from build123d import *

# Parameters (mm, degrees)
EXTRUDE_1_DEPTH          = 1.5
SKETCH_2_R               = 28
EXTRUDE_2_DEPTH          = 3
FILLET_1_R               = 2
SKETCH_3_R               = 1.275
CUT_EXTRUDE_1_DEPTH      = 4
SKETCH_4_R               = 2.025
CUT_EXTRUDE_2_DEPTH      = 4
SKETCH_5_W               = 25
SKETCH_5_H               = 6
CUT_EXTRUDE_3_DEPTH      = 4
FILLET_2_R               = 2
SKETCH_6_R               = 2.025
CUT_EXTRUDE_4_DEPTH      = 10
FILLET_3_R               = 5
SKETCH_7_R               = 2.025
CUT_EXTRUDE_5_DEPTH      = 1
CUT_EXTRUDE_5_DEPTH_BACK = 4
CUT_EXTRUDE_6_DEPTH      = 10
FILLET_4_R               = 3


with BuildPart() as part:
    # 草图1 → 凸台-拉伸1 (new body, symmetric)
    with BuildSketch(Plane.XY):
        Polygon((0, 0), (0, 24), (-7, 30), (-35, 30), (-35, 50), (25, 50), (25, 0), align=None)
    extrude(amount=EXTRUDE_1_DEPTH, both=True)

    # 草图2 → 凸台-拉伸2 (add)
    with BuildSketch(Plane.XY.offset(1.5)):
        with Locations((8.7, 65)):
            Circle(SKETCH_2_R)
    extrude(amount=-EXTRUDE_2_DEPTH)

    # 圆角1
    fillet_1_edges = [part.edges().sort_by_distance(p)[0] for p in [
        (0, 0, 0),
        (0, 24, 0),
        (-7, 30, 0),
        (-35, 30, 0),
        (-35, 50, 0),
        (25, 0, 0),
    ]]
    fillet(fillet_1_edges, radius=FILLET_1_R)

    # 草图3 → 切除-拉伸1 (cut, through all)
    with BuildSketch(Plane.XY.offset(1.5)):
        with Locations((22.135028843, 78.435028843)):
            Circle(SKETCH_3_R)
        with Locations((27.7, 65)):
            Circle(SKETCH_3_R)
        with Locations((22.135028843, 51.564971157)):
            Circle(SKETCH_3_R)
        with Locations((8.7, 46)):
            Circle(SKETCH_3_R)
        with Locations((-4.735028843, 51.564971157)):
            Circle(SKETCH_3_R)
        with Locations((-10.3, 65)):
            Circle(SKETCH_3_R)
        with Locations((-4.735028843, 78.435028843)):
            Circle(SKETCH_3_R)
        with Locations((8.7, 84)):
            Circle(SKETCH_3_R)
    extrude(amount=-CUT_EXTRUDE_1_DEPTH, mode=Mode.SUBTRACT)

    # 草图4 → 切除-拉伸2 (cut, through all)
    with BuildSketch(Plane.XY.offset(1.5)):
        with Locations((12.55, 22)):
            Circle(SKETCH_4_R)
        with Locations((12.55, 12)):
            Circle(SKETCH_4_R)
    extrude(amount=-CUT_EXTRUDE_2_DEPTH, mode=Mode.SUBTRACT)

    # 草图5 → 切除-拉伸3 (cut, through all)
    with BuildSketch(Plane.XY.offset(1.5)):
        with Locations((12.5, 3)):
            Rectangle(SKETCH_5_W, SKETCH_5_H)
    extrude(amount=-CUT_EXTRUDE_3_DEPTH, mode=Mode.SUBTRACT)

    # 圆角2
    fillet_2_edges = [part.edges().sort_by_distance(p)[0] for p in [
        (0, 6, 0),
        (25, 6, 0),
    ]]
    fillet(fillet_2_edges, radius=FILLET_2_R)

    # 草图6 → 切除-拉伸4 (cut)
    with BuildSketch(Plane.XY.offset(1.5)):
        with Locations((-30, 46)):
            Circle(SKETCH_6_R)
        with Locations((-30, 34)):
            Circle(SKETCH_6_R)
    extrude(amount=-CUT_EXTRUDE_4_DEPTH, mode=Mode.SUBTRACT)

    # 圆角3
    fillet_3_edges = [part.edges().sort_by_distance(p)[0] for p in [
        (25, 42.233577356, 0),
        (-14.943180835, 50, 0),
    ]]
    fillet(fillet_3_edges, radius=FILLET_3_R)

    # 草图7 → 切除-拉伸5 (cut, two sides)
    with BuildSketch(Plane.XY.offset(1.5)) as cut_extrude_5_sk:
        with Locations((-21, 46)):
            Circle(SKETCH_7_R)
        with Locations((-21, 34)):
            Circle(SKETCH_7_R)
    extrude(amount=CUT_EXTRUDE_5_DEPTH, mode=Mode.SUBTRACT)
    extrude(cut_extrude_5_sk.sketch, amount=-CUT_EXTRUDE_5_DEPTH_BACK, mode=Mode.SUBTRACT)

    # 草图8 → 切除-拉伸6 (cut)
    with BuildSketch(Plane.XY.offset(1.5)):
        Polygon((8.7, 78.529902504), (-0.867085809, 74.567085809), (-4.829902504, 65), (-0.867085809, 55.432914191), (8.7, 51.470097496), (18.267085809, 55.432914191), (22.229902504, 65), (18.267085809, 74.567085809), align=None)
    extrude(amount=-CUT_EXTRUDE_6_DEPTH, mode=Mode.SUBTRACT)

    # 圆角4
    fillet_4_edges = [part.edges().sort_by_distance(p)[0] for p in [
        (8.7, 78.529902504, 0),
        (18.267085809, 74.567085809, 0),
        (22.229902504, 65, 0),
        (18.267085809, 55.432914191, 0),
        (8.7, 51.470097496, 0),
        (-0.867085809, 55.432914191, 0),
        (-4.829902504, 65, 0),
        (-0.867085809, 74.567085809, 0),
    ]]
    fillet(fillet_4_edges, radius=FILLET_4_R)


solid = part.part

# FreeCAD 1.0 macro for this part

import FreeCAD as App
import Part
import Sketcher

V = App.Vector
Q = App.Units.Quantity


def edges_at(feature, points):
    """Names of the edges that pass closest to the given points."""
    edges = feature.Shape.Edges
    near = lambda p: min(range(len(edges)), key=lambda i: edges[i].distToShape(Part.Vertex(*p))[0])
    return sorted({f"Edge{near(p) + 1}" for p in points})

doc = App.newDocument("Part")
body = doc.addObject("PartDesign::Body", "Body")

# Sketch on XY plane
sketch1 = body.newObject("Sketcher::SketchObject", "Sketch")
sketch1.AttachmentSupport = (doc.getObject("XY_Plane"), [""])
sketch1.MapMode = "FlatFace"
sketch1.addGeometry(Part.LineSegment(V(0, 24, 0), V(0, 0, 0)), False)
sketch1.addGeometry(Part.LineSegment(V(0, 0, 0), V(25, 0, 0)), False)
sketch1.addGeometry(Part.LineSegment(V(25, 0, 0), V(25, 50, 0)), False)
sketch1.addGeometry(Part.LineSegment(V(25, 50, 0), V(-35, 50, 0)), False)
sketch1.addGeometry(Part.LineSegment(V(-35, 50, 0), V(-35, 30, 0)), False)
sketch1.addGeometry(Part.LineSegment(V(-35, 30, 0), V(-7, 30, 0)), False)
sketch1.addGeometry(Part.LineSegment(V(-7, 30, 0), V(0, 24, 0)), False)
sketch1.addConstraint(Sketcher.Constraint("Coincident", 0, 2, 1, 1))
sketch1.addConstraint(Sketcher.Constraint("Coincident", 1, 2, 2, 1))
sketch1.addConstraint(Sketcher.Constraint("Coincident", 2, 2, 3, 1))
sketch1.addConstraint(Sketcher.Constraint("Coincident", 3, 2, 4, 1))
sketch1.addConstraint(Sketcher.Constraint("Coincident", 4, 2, 5, 1))
sketch1.addConstraint(Sketcher.Constraint("Coincident", 5, 2, 6, 1))
sketch1.addConstraint(Sketcher.Constraint("Coincident", 6, 2, 0, 1))
sketch1.addConstraint(Sketcher.Constraint("Vertical", 0))
sketch1.addConstraint(Sketcher.Constraint("Horizontal", 1))
sketch1.addConstraint(Sketcher.Constraint("Vertical", 2))
sketch1.addConstraint(Sketcher.Constraint("Horizontal", 3))
sketch1.addConstraint(Sketcher.Constraint("Vertical", 4))
sketch1.addConstraint(Sketcher.Constraint("Horizontal", 5))
sketch1.addConstraint(Sketcher.Constraint("Coincident", 0, 2, -1, 1))
sketch1.addConstraint(Sketcher.Constraint("DistanceX", 1, 1, 1, 2, Q("25 mm")))
sketch1.addConstraint(Sketcher.Constraint("DistanceX", 3, 2, 3, 1, Q("60 mm")))
sketch1.addConstraint(Sketcher.Constraint("DistanceX", 5, 1, 5, 2, Q("28 mm")))
sketch1.addConstraint(Sketcher.Constraint("DistanceY", 0, 2, 0, 1, Q("24 mm")))
sketch1.addConstraint(Sketcher.Constraint("DistanceY", 2, 1, 2, 2, Q("50 mm")))
sketch1.addConstraint(Sketcher.Constraint("DistanceY", 4, 2, 4, 1, Q("20 mm")))
pad1 = body.newObject("PartDesign::Pad", "Pad")
pad1.Profile = sketch1
pad1.Length = 3
pad1.Midplane = True

# Sketch on XY plane
sketch2 = body.newObject("Sketcher::SketchObject", "Sketch001")
sketch2.AttachmentSupport = (doc.getObject("XY_Plane"), [""])
sketch2.MapMode = "FlatFace"
sketch2.AttachmentOffset = App.Placement(V(0, 0, 1.5), App.Rotation())
sketch2.addGeometry(Part.Circle(V(9, 65, 0), V(0, 0, 1), 28), False)
sketch2.addConstraint(Sketcher.Constraint("Diameter", 0, Q("56 mm")))
sketch2.addConstraint(Sketcher.Constraint("DistanceY", -1, 1, 0, 3, Q("65 mm")))
sketch2.addConstraint(Sketcher.Constraint("DistanceX", -1, 1, 0, 3, Q("8.7 mm")))
pad2 = body.newObject("PartDesign::Pad", "Pad001")
pad2.Profile = sketch2
pad2.Length = 3
pad2.Reversed = True
doc.recompute()

fillet = body.newObject("PartDesign::Fillet", "Fillet")
fillet.Base = (pad2, edges_at(pad2, [
    (0, 0, 0),
    (0, 24, 0),
    (-7, 30, 0),
    (-35, 30, 0),
    (-35, 50, 0),
    (25, 0, 0),
]))
fillet.Radius = 2

# Sketch on XY plane
sketch3 = body.newObject("Sketcher::SketchObject", "Sketch002")
sketch3.AttachmentSupport = (doc.getObject("XY_Plane"), [""])
sketch3.MapMode = "FlatFace"
sketch3.AttachmentOffset = App.Placement(V(0, 0, 1.5), App.Rotation())
sketch3.addGeometry(Part.Circle(V(22.1, 78.4, 0), V(0, 0, 1), 1.3), False)
sketch3.addGeometry(Part.Circle(V(27.7, 65, 0), V(0, 0, 1), 1.3), False)
sketch3.addGeometry(Part.Circle(V(22.1, 51.6, 0), V(0, 0, 1), 1.3), False)
sketch3.addGeometry(Part.Circle(V(8.7, 46, 0), V(0, 0, 1), 1.3), False)
sketch3.addGeometry(Part.Circle(V(-4.7, 51.6, 0), V(0, 0, 1), 1.3), False)
sketch3.addGeometry(Part.Circle(V(-10.3, 65, 0), V(0, 0, 1), 1.3), False)
sketch3.addGeometry(Part.Circle(V(-4.7, 78.4, 0), V(0, 0, 1), 1.3), False)
sketch3.addGeometry(Part.Circle(V(8.7, 84, 0), V(0, 0, 1), 1.3), False)
sketch3.addConstraint(Sketcher.Constraint("Equal", 0, 1))
sketch3.addConstraint(Sketcher.Constraint("Equal", 1, 2))
sketch3.addConstraint(Sketcher.Constraint("Equal", 2, 3))
sketch3.addConstraint(Sketcher.Constraint("Equal", 3, 4))
sketch3.addConstraint(Sketcher.Constraint("Equal", 4, 5))
sketch3.addConstraint(Sketcher.Constraint("Equal", 5, 6))
sketch3.addConstraint(Sketcher.Constraint("Equal", 6, 7))
sketch3.addConstraint(Sketcher.Constraint("Horizontal", 2, 3, 4, 3))
sketch3.addConstraint(Sketcher.Constraint("Horizontal", 1, 3, 5, 3))
sketch3.addConstraint(Sketcher.Constraint("Horizontal", 0, 3, 6, 3))
sketch3.addConstraint(Sketcher.Constraint("Vertical", 0, 3, 2, 3))
sketch3.addConstraint(Sketcher.Constraint("Vertical", 4, 3, 6, 3))
sketch3.addConstraint(Sketcher.Constraint("Vertical", 3, 3, 7, 3))
sketch3.addConstraint(Sketcher.Constraint("Diameter", 0, Q("2.55 mm")))
sketch3.addConstraint(Sketcher.Constraint("DistanceY", -1, 1, 1, 3, Q("65 mm")))
sketch3.addConstraint(Sketcher.Constraint("DistanceY", -1, 1, 3, 3, Q("46 mm")))
sketch3.addConstraint(Sketcher.Constraint("DistanceY", -1, 1, 7, 3, Q("84 mm")))
sketch3.addConstraint(Sketcher.Constraint("DistanceX", 3, 3, 1, 3, Q("19 mm")))
sketch3.addConstraint(Sketcher.Constraint("DistanceX", 5, 3, 3, 3, Q("19 mm")))
sketch3.addConstraint(Sketcher.Constraint("DistanceX", -1, 1, 1, 3, Q("27.7 mm")))
sketch3.addConstraint(Sketcher.Constraint("DistanceX", -1, 1, 0, 3, Q("22.135029 mm")))
sketch3.addConstraint(Sketcher.Constraint("DistanceY", -1, 1, 0, 3, Q("78.435029 mm")))
sketch3.addConstraint(Sketcher.Constraint("DistanceY", -1, 1, 2, 3, Q("51.564971 mm")))
sketch3.addConstraint(Sketcher.Constraint("DistanceX", 4, 3, -1, 1, Q("4.735029 mm")))
pocket1 = body.newObject("PartDesign::Pocket", "Pocket")
pocket1.Profile = sketch3
pocket1.Type = "ThroughAll"

# Sketch on XY plane
sketch4 = body.newObject("Sketcher::SketchObject", "Sketch003")
sketch4.AttachmentSupport = (doc.getObject("XY_Plane"), [""])
sketch4.MapMode = "FlatFace"
sketch4.AttachmentOffset = App.Placement(V(0, 0, 1.5), App.Rotation())
sketch4.addGeometry(Part.Circle(V(12.6, 22, 0), V(0, 0, 1), 2), False)
sketch4.addGeometry(Part.Circle(V(12.6, 12, 0), V(0, 0, 1), 2), False)
sketch4.addConstraint(Sketcher.Constraint("Equal", 0, 1))
sketch4.addConstraint(Sketcher.Constraint("Vertical", 0, 3, 1, 3))
sketch4.addConstraint(Sketcher.Constraint("Diameter", 0, Q("4.05 mm")))
sketch4.addConstraint(Sketcher.Constraint("DistanceY", -1, 1, 0, 3, Q("22 mm")))
sketch4.addConstraint(Sketcher.Constraint("DistanceY", -1, 1, 1, 3, Q("12 mm")))
sketch4.addConstraint(Sketcher.Constraint("DistanceX", -1, 1, 0, 3, Q("12.55 mm")))
pocket2 = body.newObject("PartDesign::Pocket", "Pocket001")
pocket2.Profile = sketch4
pocket2.Type = "ThroughAll"

# Sketch on XY plane
sketch5 = body.newObject("Sketcher::SketchObject", "Sketch004")
sketch5.AttachmentSupport = (doc.getObject("XY_Plane"), [""])
sketch5.MapMode = "FlatFace"
sketch5.AttachmentOffset = App.Placement(V(0, 0, 1.5), App.Rotation())
sketch5.addGeometry(Part.LineSegment(V(0, 6, 0), V(0, 0, 0)), False)
sketch5.addGeometry(Part.LineSegment(V(0, 0, 0), V(25, 0, 0)), False)
sketch5.addGeometry(Part.LineSegment(V(25, 0, 0), V(25, 6, 0)), False)
sketch5.addGeometry(Part.LineSegment(V(25, 6, 0), V(0, 6, 0)), False)
sketch5.addConstraint(Sketcher.Constraint("Coincident", 0, 2, 1, 1))
sketch5.addConstraint(Sketcher.Constraint("Coincident", 1, 2, 2, 1))
sketch5.addConstraint(Sketcher.Constraint("Coincident", 2, 2, 3, 1))
sketch5.addConstraint(Sketcher.Constraint("Coincident", 3, 2, 0, 1))
sketch5.addConstraint(Sketcher.Constraint("Vertical", 0))
sketch5.addConstraint(Sketcher.Constraint("Horizontal", 1))
sketch5.addConstraint(Sketcher.Constraint("Vertical", 2))
sketch5.addConstraint(Sketcher.Constraint("Horizontal", 3))
sketch5.addConstraint(Sketcher.Constraint("Coincident", 0, 2, -1, 1))
sketch5.addConstraint(Sketcher.Constraint("DistanceX", 1, 1, 1, 2, Q("25 mm")))
sketch5.addConstraint(Sketcher.Constraint("DistanceY", 0, 2, 0, 1, Q("6 mm")))
pocket3 = body.newObject("PartDesign::Pocket", "Pocket002")
pocket3.Profile = sketch5
pocket3.Type = "ThroughAll"
doc.recompute()

fillet2 = body.newObject("PartDesign::Fillet", "Fillet001")
fillet2.Base = (pocket3, edges_at(pocket3, [(0, 6, 0), (25, 6, 0)]))
fillet2.Radius = 2

# Sketch on XY plane
sketch6 = body.newObject("Sketcher::SketchObject", "Sketch005")
sketch6.AttachmentSupport = (doc.getObject("XY_Plane"), [""])
sketch6.MapMode = "FlatFace"
sketch6.AttachmentOffset = App.Placement(V(0, 0, 1.5), App.Rotation())
sketch6.addGeometry(Part.Circle(V(-30, 46, 0), V(0, 0, 1), 2), False)
sketch6.addGeometry(Part.Circle(V(-30, 34, 0), V(0, 0, 1), 2), False)
sketch6.addConstraint(Sketcher.Constraint("Equal", 0, 1))
sketch6.addConstraint(Sketcher.Constraint("Vertical", 0, 3, 1, 3))
sketch6.addConstraint(Sketcher.Constraint("Diameter", 0, Q("4.05 mm")))
sketch6.addConstraint(Sketcher.Constraint("DistanceX", 0, 3, -1, 1, Q("30 mm")))
sketch6.addConstraint(Sketcher.Constraint("DistanceY", -1, 1, 0, 3, Q("46 mm")))
sketch6.addConstraint(Sketcher.Constraint("DistanceY", -1, 1, 1, 3, Q("34 mm")))
pocket4 = body.newObject("PartDesign::Pocket", "Pocket003")
pocket4.Profile = sketch6
pocket4.Length = 10
doc.recompute()

fillet3 = body.newObject("PartDesign::Fillet", "Fillet002")
fillet3.Base = (pocket4, edges_at(pocket4, [(25, 42.234, 0), (-14.943, 50, 0)]))
fillet3.Radius = 5

# Sketch on XY plane
sketch7 = body.newObject("Sketcher::SketchObject", "Sketch006")
sketch7.AttachmentSupport = (doc.getObject("XY_Plane"), [""])
sketch7.MapMode = "FlatFace"
sketch7.AttachmentOffset = App.Placement(V(0, 0, 1.5), App.Rotation())
sketch7.addGeometry(Part.Circle(V(-21, 46, 0), V(0, 0, 1), 2), False)
sketch7.addGeometry(Part.Circle(V(-21, 34, 0), V(0, 0, 1), 2), False)
sketch7.addConstraint(Sketcher.Constraint("Equal", 0, 1))
sketch7.addConstraint(Sketcher.Constraint("Vertical", 0, 3, 1, 3))
sketch7.addConstraint(Sketcher.Constraint("Diameter", 0, Q("4.05 mm")))
sketch7.addConstraint(Sketcher.Constraint("DistanceX", 0, 3, -1, 1, Q("21 mm")))
sketch7.addConstraint(Sketcher.Constraint("DistanceY", -1, 1, 0, 3, Q("46 mm")))
sketch7.addConstraint(Sketcher.Constraint("DistanceY", -1, 1, 1, 3, Q("34 mm")))
pocket5 = body.newObject("PartDesign::Pocket", "Pocket004")
pocket5.Profile = sketch7
pocket5.Type = "ThroughAll"
pocket5.Midplane = True

# Sketch on XY plane
sketch8 = body.newObject("Sketcher::SketchObject", "Sketch007")
sketch8.AttachmentSupport = (doc.getObject("XY_Plane"), [""])
sketch8.MapMode = "FlatFace"
sketch8.AttachmentOffset = App.Placement(V(0, 0, 1.5), App.Rotation())
sketch8.addGeometry(Part.LineSegment(V(9, 79, 0), V(-1, 75, 0)), False)
sketch8.addGeometry(Part.LineSegment(V(-1, 75, 0), V(-5, 65, 0)), False)
sketch8.addGeometry(Part.LineSegment(V(-5, 65, 0), V(-1, 55, 0)), False)
sketch8.addGeometry(Part.LineSegment(V(-1, 55, 0), V(9, 51, 0)), False)
sketch8.addGeometry(Part.LineSegment(V(9, 51, 0), V(18, 55, 0)), False)
sketch8.addGeometry(Part.LineSegment(V(18, 55, 0), V(22, 65, 0)), False)
sketch8.addGeometry(Part.LineSegment(V(22, 65, 0), V(18, 75, 0)), False)
sketch8.addGeometry(Part.LineSegment(V(18, 75, 0), V(9, 79, 0)), False)
sketch8.addConstraint(Sketcher.Constraint("Coincident", 0, 2, 1, 1))
sketch8.addConstraint(Sketcher.Constraint("Coincident", 1, 2, 2, 1))
sketch8.addConstraint(Sketcher.Constraint("Coincident", 2, 2, 3, 1))
sketch8.addConstraint(Sketcher.Constraint("Coincident", 3, 2, 4, 1))
sketch8.addConstraint(Sketcher.Constraint("Coincident", 4, 2, 5, 1))
sketch8.addConstraint(Sketcher.Constraint("Coincident", 5, 2, 6, 1))
sketch8.addConstraint(Sketcher.Constraint("Coincident", 6, 2, 7, 1))
sketch8.addConstraint(Sketcher.Constraint("Coincident", 7, 2, 0, 1))
sketch8.addConstraint(Sketcher.Constraint("Perpendicular", 0, 2))
sketch8.addConstraint(Sketcher.Constraint("Perpendicular", 1, 3))
sketch8.addConstraint(Sketcher.Constraint("Perpendicular", 2, 4))
sketch8.addConstraint(Sketcher.Constraint("Perpendicular", 3, 5))
sketch8.addConstraint(Sketcher.Constraint("Perpendicular", 4, 6))
sketch8.addConstraint(Sketcher.Constraint("Perpendicular", 5, 7))
sketch8.addConstraint(Sketcher.Constraint("Horizontal", 2, 2, 4, 2))
sketch8.addConstraint(Sketcher.Constraint("Horizontal", 1, 2, 5, 2))
sketch8.addConstraint(Sketcher.Constraint("Horizontal", 0, 2, 6, 2))
sketch8.addConstraint(Sketcher.Constraint("Vertical", 0, 2, 2, 2))
sketch8.addConstraint(Sketcher.Constraint("Vertical", 4, 2, 6, 2))
sketch8.addConstraint(Sketcher.Constraint("Equal", 0, 1))
sketch8.addConstraint(Sketcher.Constraint("DistanceY", -1, 1, 1, 2, Q("65 mm")))
sketch8.addConstraint(Sketcher.Constraint("Angle", 0, Q("-157.5 deg")))
sketch8.addConstraint(Sketcher.Constraint("DistanceX", -1, 1, 3, 2, Q("8.7 mm")))
sketch8.addConstraint(Sketcher.Constraint("Distance", 0, Q("10.355339 mm")))
pocket6 = body.newObject("PartDesign::Pocket", "Pocket005")
pocket6.Profile = sketch8
pocket6.Length = 10
doc.recompute()

fillet4 = body.newObject("PartDesign::Fillet", "Fillet003")
fillet4.Base = (pocket6, edges_at(pocket6, [
    (8.7, 78.53, 0),
    (18.267, 74.567, 0),
    (22.23, 65, 0),
    (18.267, 55.433, 0),
    (8.7, 51.47, 0),
    (-0.867, 55.433, 0),
    (-4.83, 65, 0),
    (-0.867, 74.567, 0),
]))
fillet4.Radius = 3

doc.recompute()
